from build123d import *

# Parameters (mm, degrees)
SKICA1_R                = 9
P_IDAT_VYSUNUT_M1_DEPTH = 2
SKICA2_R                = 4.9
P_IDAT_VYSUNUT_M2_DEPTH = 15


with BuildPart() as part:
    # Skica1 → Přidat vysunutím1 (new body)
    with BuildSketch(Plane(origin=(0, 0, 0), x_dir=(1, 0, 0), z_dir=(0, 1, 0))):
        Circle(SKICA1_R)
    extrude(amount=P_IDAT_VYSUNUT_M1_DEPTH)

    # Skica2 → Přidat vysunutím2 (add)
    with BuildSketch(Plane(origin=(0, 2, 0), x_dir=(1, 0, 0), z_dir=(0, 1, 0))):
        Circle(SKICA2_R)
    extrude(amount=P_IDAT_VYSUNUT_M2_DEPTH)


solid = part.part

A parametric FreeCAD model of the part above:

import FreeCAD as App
import Part
import Sketcher

V = App.Vector

doc = App.newDocument("Part")
body = doc.addObject("PartDesign::Body", "Body")

sketch1 = body.newObject("Sketcher::SketchObject", "Sketch")
sketch1.AttachmentSupport = (doc.getObject("XZ_Plane"), [""])
sketch1.MapMode = "FlatFace"
sketch1.addGeometry(Part.Circle(V(0, 0, 0), V(0, 0, 1), 9), False)
sketch1.addConstraint(Sketcher.Constraint("Coincident", 0, 3, -1, 1))
sketch1.addConstraint(Sketcher.Constraint("Diameter", 0, 18.0))
pad1 = body.newObject("PartDesign::Pad", "Pad")
pad1.Profile = sketch1
pad1.Length = 2
pad1.Reversed = True

sketch2 = body.newObject("Sketcher::SketchObject", "Sketch001")
sketch2.AttachmentSupport = (doc.getObject("XZ_Plane"), [""])
sketch2.MapMode = "FlatFace"
sketch2.AttachmentOffset = App.Placement(V(0, 0, -2), App.Rotation())
sketch2.addGeometry(Part.Circle(V(0, 0, 0), V(0, 0, 1), 4.9), False)
sketch2.addConstraint(Sketcher.Constraint("Coincident", 0, 3, -1, 1))
sketch2.addConstraint(Sketcher.Constraint("Diameter", 0, 9.8))
pad2 = body.newObject("PartDesign::Pad", "Pad001")
pad2.Profile = sketch2
pad2.Length = 15
pad2.Reversed = True

doc.recompute()
